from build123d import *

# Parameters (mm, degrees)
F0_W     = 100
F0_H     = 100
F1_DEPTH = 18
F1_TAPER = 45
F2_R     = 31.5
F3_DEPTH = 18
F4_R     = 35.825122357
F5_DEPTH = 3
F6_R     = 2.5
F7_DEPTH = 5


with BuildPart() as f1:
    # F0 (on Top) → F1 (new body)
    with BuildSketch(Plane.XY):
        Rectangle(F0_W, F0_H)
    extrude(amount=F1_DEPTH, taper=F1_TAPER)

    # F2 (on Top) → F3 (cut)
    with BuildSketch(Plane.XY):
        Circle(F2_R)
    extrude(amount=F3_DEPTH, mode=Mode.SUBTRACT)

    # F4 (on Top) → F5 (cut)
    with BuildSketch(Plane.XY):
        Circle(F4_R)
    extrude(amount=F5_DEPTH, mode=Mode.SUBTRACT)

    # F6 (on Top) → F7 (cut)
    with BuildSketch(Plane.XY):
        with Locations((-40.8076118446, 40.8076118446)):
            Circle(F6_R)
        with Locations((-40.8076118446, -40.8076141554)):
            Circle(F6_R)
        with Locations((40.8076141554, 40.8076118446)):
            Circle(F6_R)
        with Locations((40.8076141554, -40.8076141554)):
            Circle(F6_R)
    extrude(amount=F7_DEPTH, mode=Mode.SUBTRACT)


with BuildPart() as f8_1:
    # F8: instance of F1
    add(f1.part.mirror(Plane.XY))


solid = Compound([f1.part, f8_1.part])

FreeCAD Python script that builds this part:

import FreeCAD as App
import Part
import Sketcher

V = App.Vector


def add_polygon(sketch, points):
    """Adds a closed chain of lines whose ends are joined by coincident constraints."""
    first, n = sketch.GeometryCount, len(points)
    for a, b in zip(points, points[1:] + points[:1]):
        sketch.addGeometry(Part.LineSegment(App.Vector(*a, 0), App.Vector(*b, 0)), False)
    for i in range(n):
        sketch.addConstraint(Sketcher.Constraint("Coincident", first + i, 2, first + (i + 1) % n, 1))

doc = App.newDocument("Part")
body = doc.addObject("PartDesign::Body", "Body")

sketch1 = doc.addObject("Sketcher::SketchObject", "Sketch")
body.addObject(sketch1)
sketch1.AttachmentSupport = (doc.XY_Plane, [""])
sketch1.MapMode = "FlatFace"
add_polygon(sketch1, [(-50, 50), (-50, -50), (50, -50), (50, 50)])
sketch1.addConstraint([
    Sketcher.Constraint("Vertical", 0),
    Sketcher.Constraint("Horizontal", 1),
    Sketcher.Constraint("Vertical", 2),
    Sketcher.Constraint("Horizontal", 3),
    Sketcher.Constraint("Symmetric", 0, 2, 2, 2, -1, 1),
    Sketcher.Constraint("Equal", 3, 0),
    Sketcher.Constraint("DistanceX", 1, 1, 1, 2, 100.0),
])
pad1 = doc.addObject("PartDesign::Pad", "Pad")
body.addObject(pad1)
pad1.Profile = sketch1
pad1.Length = 18
pad1.TaperAngle = -45

sketch2 = doc.addObject("Sketcher::SketchObject", "Sketch001")
body.addObject(sketch2)
sketch2.AttachmentSupport = (doc.XY_Plane, [""])
sketch2.MapMode = "FlatFace"
sketch2.addGeometry(Part.Circle(V(0, 0, 0), V(0, 0, 1), 32), False)
sketch2.addConstraint([
    Sketcher.Constraint("Coincident", 0, 3, -1, 1),
    Sketcher.Constraint("Diameter", 0, 63.0),
])
pocket1 = doc.addObject("PartDesign::Pocket", "Pocket")
body.addObject(pocket1)
pocket1.Profile = sketch2
pocket1.Length = 18
pocket1.Reversed = True

sketch3 = doc.addObject("Sketcher::SketchObject", "Sketch002")
body.addObject(sketch3)
sketch3.AttachmentSupport = (doc.XY_Plane, [""])
sketch3.MapMode = "FlatFace"
sketch3.addGeometry(Part.Circle(V(0, 0, 0), V(0, 0, 1), 36), False)
sketch3.addConstraint([
    Sketcher.Constraint("Coincident", 0, 3, -1, 1),
    Sketcher.Constraint("Diameter", 0, 71.650245),
])
pocket2 = doc.addObject("PartDesign::Pocket", "Pocket001")
body.addObject(pocket2)
pocket2.Profile = sketch3
pocket2.Length = 3
pocket2.Reversed = True

sketch4 = doc.addObject("Sketcher::SketchObject", "Sketch003")
body.addObject(sketch4)
sketch4.AttachmentSupport = (doc.XY_Plane, [""])
sketch4.MapMode = "FlatFace"
sketch4.addGeometry([
    Part.Circle(V(-40.8, 40.8, 0), V(0, 0, 1), 2.5),
    Part.Circle(V(-40.8, -40.8, 0), V(0, 0, 1), 2.5),
    Part.Circle(V(40.8, 40.8, 0), V(0, 0, 1), 2.5),
    Part.Circle(V(40.8, -40.8, 0), V(0, 0, 1), 2.5),
], False)
sketch4.addConstraint([
    Sketcher.Constraint("Equal", 0, 1),
    Sketcher.Constraint("Equal", 1, 2),
    Sketcher.Constraint("Equal", 2, 3),
    Sketcher.Constraint("Symmetric", 1, 3, 2, 3, -1, 1),
    Sketcher.Constraint("Symmetric", 0, 3, 3, 3, -1, 1),
    Sketcher.Constraint("Symmetric", 0, 3, 2, 3, -2),
    Sketcher.Constraint("Diameter", 0, 5.0),
    Sketcher.Constraint("DistanceX", 0, 3, -1, 1, 40.807612),
    Sketcher.Constraint("DistanceY", -1, 1, 0, 3, 40.807612),
])
pocket3 = doc.addObject("PartDesign::Pocket", "Pocket002")
body.addObject(pocket3)
pocket3.Profile = sketch4
pocket3.Length = 5
pocket3.Reversed = True
body2 = doc.addObject("PartDesign::Body", "Body001")
doc.recompute()

mirroring = doc.addObject("Part::Mirroring", "Mirroring")
mirroring.Source = body
mirroring.Base = V(0, 0, 0)
mirroring.Normal = V(0, 0, 1)
body2.BaseFeature = mirroring
doc.recompute()
mirroring.Visibility = False

doc.recompute()
